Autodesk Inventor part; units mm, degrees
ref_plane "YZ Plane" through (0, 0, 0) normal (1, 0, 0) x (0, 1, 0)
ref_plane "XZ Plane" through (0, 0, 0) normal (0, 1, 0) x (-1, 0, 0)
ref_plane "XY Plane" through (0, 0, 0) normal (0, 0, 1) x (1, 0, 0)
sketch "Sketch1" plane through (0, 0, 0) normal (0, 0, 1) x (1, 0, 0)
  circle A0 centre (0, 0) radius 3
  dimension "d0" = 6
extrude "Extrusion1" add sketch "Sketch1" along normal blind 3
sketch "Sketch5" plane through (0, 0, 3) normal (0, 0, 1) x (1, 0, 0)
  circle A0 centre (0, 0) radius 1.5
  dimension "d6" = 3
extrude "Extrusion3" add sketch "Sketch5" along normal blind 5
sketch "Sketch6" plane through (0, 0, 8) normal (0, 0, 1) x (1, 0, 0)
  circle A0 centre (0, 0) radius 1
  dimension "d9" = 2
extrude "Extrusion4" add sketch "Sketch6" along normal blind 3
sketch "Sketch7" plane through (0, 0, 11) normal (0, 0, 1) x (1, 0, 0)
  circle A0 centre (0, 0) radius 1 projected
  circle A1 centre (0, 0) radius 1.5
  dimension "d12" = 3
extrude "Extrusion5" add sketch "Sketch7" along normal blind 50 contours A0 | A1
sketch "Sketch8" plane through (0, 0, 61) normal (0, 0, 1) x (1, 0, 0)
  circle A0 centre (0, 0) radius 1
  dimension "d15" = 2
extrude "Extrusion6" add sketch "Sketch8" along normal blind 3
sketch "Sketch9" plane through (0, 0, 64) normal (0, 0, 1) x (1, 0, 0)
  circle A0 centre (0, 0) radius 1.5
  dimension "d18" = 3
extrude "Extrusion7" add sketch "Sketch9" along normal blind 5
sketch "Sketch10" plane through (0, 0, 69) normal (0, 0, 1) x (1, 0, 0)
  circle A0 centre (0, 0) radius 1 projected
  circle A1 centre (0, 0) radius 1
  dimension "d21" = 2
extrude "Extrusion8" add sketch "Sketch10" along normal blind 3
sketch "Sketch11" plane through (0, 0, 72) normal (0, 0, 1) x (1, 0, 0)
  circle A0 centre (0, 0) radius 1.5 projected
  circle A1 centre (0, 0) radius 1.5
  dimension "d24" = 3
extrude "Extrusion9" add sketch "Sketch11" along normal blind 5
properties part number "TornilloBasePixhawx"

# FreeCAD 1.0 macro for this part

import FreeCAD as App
import Part
import Sketcher

V = App.Vector
Q = App.Units.Quantity

doc = App.newDocument("Part")
params = doc.addObject("Spreadsheet::Sheet", "Params")
for row, (alias, value) in enumerate([
    ("sketch1_diameter", "6 mm"),
    ("pad1_length", "3 mm"),
    ("sketch2_diameter", "3 mm"),
    ("pad2_length", "5 mm"),
    ("sketch3_diameter", "2 mm"),
    ("pad3_length", "3 mm"),
    ("sketch4_diameter", "3 mm"),
    ("pad4_length", "50 mm"),
    ("sketch5_diameter", "2 mm"),
    ("pad5_length", "3 mm"),
    ("sketch6_diameter", "3 mm"),
    ("pad6_length", "5 mm"),
    ("sketch7_diameter", "2 mm"),
    ("pad7_length", "3 mm"),
    ("sketch8_diameter", "3 mm"),
    ("pad8_length", "5 mm"),
], start=1):
    params.set(f"A{row}", alias)
    params.set(f"B{row}", "=" + value)
    params.setAlias(f"B{row}", alias)

body = doc.addObject("PartDesign::Body", "Body")

# Sketch on XY plane
sketch1 = body.newObject("Sketcher::SketchObject", "Sketch")
sketch1.AttachmentSupport = (doc.getObject("XY_Plane"), [""])
sketch1.MapMode = "FlatFace"
sketch1.addGeometry(Part.Circle(V(0, 0, 0), V(0, 0, 1), 3), False)
sketch1.addConstraint(Sketcher.Constraint("Coincident", 0, 3, -1, 1))
sketch1.addConstraint(Sketcher.Constraint("Diameter", 0, Q("6 mm")))
sketch1.setExpression("Constraints[1]", "Params.sketch1_diameter")
pad1 = body.newObject("PartDesign::Pad", "Pad")
pad1.Profile = sketch1
pad1.setExpression("Length", "Params.pad1_length")

# Sketch on XY plane
sketch2 = body.newObject("Sketcher::SketchObject", "Sketch001")
sketch2.AttachmentSupport = (doc.getObject("XY_Plane"), [""])
sketch2.MapMode = "FlatFace"
sketch2.AttachmentOffset = App.Placement(V(0, 0, 3), App.Rotation())
sketch2.addGeometry(Part.Circle(V(0, 0, 0), V(0, 0, 1), 1.5), False)
sketch2.addConstraint(Sketcher.Constraint("Coincident", 0, 3, -1, 1))
sketch2.addConstraint(Sketcher.Constraint("Diameter", 0, Q("3 mm")))
sketch2.setExpression("Constraints[1]", "Params.sketch2_diameter")
pad2 = body.newObject("PartDesign::Pad", "Pad001")
pad2.Profile = sketch2
pad2.setExpression("Length", "Params.pad2_length")

# Sketch on XY plane
sketch3 = body.newObject("Sketcher::SketchObject", "Sketch002")
sketch3.AttachmentSupport = (doc.getObject("XY_Plane"), [""])
sketch3.MapMode = "FlatFace"
sketch3.AttachmentOffset = App.Placement(V(0, 0, 8), App.Rotation())
sketch3.addGeometry(Part.Circle(V(0, 0, 0), V(0, 0, 1), 1), False)
sketch3.addConstraint(Sketcher.Constraint("Coincident", 0, 3, -1, 1))
sketch3.addConstraint(Sketcher.Constraint("Diameter", 0, Q("2 mm")))
sketch3.setExpression("Constraints[1]", "Params.sketch3_diameter")
pad3 = body.newObject("PartDesign::Pad", "Pad002")
pad3.Profile = sketch3
pad3.setExpression("Length", "Params.pad3_length")

# Sketch on XY plane
sketch4 = body.newObject("Sketcher::SketchObject", "Sketch003")
sketch4.AttachmentSupport = (doc.getObject("XY_Plane"), [""])
sketch4.MapMode = "FlatFace"
sketch4.AttachmentOffset = App.Placement(V(0, 0, 11), App.Rotation())
sketch4.addGeometry(Part.Circle(V(0, 0, 0), V(0, 0, 1), 1.5), False)
sketch4.addConstraint(Sketcher.Constraint("Coincident", 0, 3, -1, 1))
sketch4.addConstraint(Sketcher.Constraint("Diameter", 0, Q("3 mm")))
sketch4.setExpression("Constraints[1]", "Params.sketch4_diameter")
pad4 = body.newObject("PartDesign::Pad", "Pad003")
pad4.Profile = sketch4
pad4.setExpression("Length", "Params.pad4_length")

# Sketch on XY plane
sketch5 = body.newObject("Sketcher::SketchObject", "Sketch004")
sketch5.AttachmentSupport = (doc.getObject("XY_Plane"), [""])
sketch5.MapMode = "FlatFace"
sketch5.AttachmentOffset = App.Placement(V(0, 0, 61), App.Rotation())
sketch5.addGeometry(Part.Circle(V(0, 0, 0), V(0, 0, 1), 1), False)
sketch5.addConstraint(Sketcher.Constraint("Coincident", 0, 3, -1, 1))
sketch5.addConstraint(Sketcher.Constraint("Diameter", 0, Q("2 mm")))
sketch5.setExpression("Constraints[1]", "Params.sketch5_diameter")
pad5 = body.newObject("PartDesign::Pad", "Pad004")
pad5.Profile = sketch5
pad5.setExpression("Length", "Params.pad5_length")

# Sketch on XY plane
sketch6 = body.newObject("Sketcher::SketchObject", "Sketch005")
sketch6.AttachmentSupport = (doc.getObject("XY_Plane"), [""])
sketch6.MapMode = "FlatFace"
sketch6.AttachmentOffset = App.Placement(V(0, 0, 64), App.Rotation())
sketch6.addGeometry(Part.Circle(V(0, 0, 0), V(0, 0, 1), 1.5), False)
sketch6.addConstraint(Sketcher.Constraint("Coincident", 0, 3, -1, 1))
sketch6.addConstraint(Sketcher.Constraint("Diameter", 0, Q("3 mm")))
sketch6.setExpression("Constraints[1]", "Params.sketch6_diameter")
pad6 = body.newObject("PartDesign::Pad", "Pad005")
pad6.Profile = sketch6
pad6.setExpression("Length", "Params.pad6_length")

# Sketch on XY plane
sketch7 = body.newObject("Sketcher::SketchObject", "Sketch006")
sketch7.AttachmentSupport = (doc.getObject("XY_Plane"), [""])
sketch7.MapMode = "FlatFace"
sketch7.AttachmentOffset = App.Placement(V(0, 0, 69), App.Rotation())
sketch7.addGeometry(Part.Circle(V(0, 0, 0), V(0, 0, 1), 1), False)
sketch7.addConstraint(Sketcher.Constraint("Coincident", 0, 3, -1, 1))
sketch7.addConstraint(Sketcher.Constraint("Diameter", 0, Q("2 mm")))
sketch7.setExpression("Constraints[1]", "Params.sketch7_diameter")
pad7 = body.newObject("PartDesign::Pad", "Pad006")
pad7.Profile = sketch7
pad7.setExpression("Length", "Params.pad7_length")

# Sketch on XY plane
sketch8 = body.newObject("Sketcher::SketchObject", "Sketch007")
sketch8.AttachmentSupport = (doc.getObject("XY_Plane"), [""])
sketch8.MapMode = "FlatFace"
sketch8.AttachmentOffset = App.Placement(V(0, 0, 72), App.Rotation())
sketch8.addGeometry(Part.Circle(V(0, 0, 0), V(0, 0, 1), 1.5), False)
sketch8.addConstraint(Sketcher.Constraint("Coincident", 0, 3, -1, 1))
sketch8.addConstraint(Sketcher.Constraint("Diameter", 0, Q("3 mm")))
sketch8.setExpression("Constraints[1]", "Params.sketch8_diameter")
pad8 = body.newObject("PartDesign::Pad", "Pad007")
pad8.Profile = sketch8
pad8.setExpression("Length", "Params.pad8_length")

doc.recompute()
